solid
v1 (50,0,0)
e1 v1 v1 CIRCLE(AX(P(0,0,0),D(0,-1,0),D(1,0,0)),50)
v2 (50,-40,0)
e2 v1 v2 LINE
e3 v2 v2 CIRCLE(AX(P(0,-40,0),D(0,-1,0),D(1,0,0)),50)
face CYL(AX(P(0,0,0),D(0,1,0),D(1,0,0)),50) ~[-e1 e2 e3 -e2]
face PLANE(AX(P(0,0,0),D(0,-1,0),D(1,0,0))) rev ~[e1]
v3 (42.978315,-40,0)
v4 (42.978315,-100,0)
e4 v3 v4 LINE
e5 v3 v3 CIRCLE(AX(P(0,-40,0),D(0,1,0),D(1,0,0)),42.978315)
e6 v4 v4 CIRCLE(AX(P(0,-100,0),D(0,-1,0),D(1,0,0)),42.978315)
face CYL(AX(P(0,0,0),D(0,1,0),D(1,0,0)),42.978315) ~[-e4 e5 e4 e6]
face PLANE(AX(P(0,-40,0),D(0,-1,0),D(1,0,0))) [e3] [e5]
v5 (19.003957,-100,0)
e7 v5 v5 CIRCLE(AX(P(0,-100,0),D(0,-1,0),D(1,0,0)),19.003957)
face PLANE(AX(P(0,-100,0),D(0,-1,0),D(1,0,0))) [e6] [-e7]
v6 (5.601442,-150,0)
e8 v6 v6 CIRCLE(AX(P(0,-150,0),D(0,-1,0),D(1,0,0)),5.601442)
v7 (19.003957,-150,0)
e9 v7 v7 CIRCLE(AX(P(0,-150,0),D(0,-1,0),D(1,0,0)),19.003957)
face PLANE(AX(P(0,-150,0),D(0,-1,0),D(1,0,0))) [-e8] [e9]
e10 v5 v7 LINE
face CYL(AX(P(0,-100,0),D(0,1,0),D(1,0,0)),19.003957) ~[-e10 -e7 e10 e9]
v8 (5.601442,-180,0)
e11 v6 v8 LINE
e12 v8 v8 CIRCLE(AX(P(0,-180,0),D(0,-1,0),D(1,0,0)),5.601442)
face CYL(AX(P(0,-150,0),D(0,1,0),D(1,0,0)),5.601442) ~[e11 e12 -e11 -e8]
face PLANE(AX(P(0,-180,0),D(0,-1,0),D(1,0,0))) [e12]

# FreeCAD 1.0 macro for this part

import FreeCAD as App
import Part
import Sketcher

doc = App.newDocument("Part")
body = doc.addObject("PartDesign::Body", "Body")

sketch1 = body.newObject("Sketcher::SketchObject", "Sketch")
sketch1.AttachmentSupport = (doc.getObject("XZ_Plane"), [""])
sketch1.MapMode = "FlatFace"
sketch1.addGeometry(Part.Circle(App.Vector(0, 0, 0), App.Vector(0, 0, 1), 50), False)
sketch1.addConstraint(Sketcher.Constraint("Coincident", 0, 3, -1, 1))
sketch1.addConstraint(Sketcher.Constraint("Diameter", 0, 100.0))
pad1 = body.newObject("PartDesign::Pad", "Pad")
pad1.Profile = sketch1
pad1.Length = 40

sketch2 = body.newObject("Sketcher::SketchObject", "Sketch001")
sketch2.AttachmentSupport = (doc.getObject("XZ_Plane"), [""])
sketch2.MapMode = "FlatFace"
sketch2.addGeometry(Part.Circle(App.Vector(0, 0, 0), App.Vector(0, 0, 1), 43), False)
sketch2.addConstraint(Sketcher.Constraint("Coincident", 0, 3, -1, 1))
sketch2.addConstraint(Sketcher.Constraint("Diameter", 0, 85.95663))
pad2 = body.newObject("PartDesign::Pad", "Pad001")
pad2.Profile = sketch2
pad2.Length = 100

sketch3 = body.newObject("Sketcher::SketchObject", "Sketch002")
sketch3.AttachmentSupport = (doc.getObject("XZ_Plane"), [""])
sketch3.MapMode = "FlatFace"
sketch3.AttachmentOffset = App.Placement(App.Vector(0, 0, 100), App.Rotation())
sketch3.addGeometry(Part.Circle(App.Vector(0, 0, 0), App.Vector(0, 0, 1), 19), False)
sketch3.addConstraint(Sketcher.Constraint("Coincident", 0, 3, -1, 1))
sketch3.addConstraint(Sketcher.Constraint("Diameter", 0, 38.007914))
pad3 = body.newObject("PartDesign::Pad", "Pad002")
pad3.Profile = sketch3
pad3.Length = 50

sketch4 = body.newObject("Sketcher::SketchObject", "Sketch003")
sketch4.AttachmentSupport = (doc.getObject("XZ_Plane"), [""])
sketch4.MapMode = "FlatFace"
sketch4.AttachmentOffset = App.Placement(App.Vector(0, 0, 150), App.Rotation())
sketch4.addGeometry(Part.Circle(App.Vector(0, 0, 0), App.Vector(0, 0, 1), 6), False)
sketch4.addConstraint(Sketcher.Constraint("Coincident", 0, 3, -1, 1))
sketch4.addConstraint(Sketcher.Constraint("Diameter", 0, 11.202884))
pad4 = body.newObject("PartDesign::Pad", "Pad003")
pad4.Profile = sketch4
pad4.Length = 30

doc.recompute()
